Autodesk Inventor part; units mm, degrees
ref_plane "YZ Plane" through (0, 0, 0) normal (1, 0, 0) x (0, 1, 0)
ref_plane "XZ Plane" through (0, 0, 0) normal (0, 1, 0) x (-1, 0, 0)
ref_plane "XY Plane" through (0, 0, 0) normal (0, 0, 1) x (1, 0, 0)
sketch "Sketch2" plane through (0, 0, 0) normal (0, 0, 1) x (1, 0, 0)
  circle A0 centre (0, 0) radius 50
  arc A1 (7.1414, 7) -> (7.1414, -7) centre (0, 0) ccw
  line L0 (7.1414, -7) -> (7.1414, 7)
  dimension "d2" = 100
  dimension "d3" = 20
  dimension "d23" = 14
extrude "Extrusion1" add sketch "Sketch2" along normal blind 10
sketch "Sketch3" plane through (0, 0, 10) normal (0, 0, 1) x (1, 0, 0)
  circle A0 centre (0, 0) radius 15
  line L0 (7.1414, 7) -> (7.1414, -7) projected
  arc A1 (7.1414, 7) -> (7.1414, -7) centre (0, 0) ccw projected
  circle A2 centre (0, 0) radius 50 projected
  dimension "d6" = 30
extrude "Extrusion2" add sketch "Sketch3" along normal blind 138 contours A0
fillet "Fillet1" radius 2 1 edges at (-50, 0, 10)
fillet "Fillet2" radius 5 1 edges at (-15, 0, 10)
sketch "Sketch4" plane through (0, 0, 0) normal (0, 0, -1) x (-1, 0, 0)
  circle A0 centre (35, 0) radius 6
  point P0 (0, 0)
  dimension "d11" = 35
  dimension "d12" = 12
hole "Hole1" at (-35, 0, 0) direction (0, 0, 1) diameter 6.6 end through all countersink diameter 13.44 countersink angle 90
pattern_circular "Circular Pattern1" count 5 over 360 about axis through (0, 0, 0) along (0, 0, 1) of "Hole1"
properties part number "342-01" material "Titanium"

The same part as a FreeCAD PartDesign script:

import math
import FreeCAD as App
import Part
import Sketcher
Q = App.Units.Quantity


def edges_at(feature, points):
    """Names of the edges that pass closest to the given points."""
    edges = feature.Shape.Edges
    near = lambda p: min(range(len(edges)), key=lambda i: edges[i].distToShape(Part.Vertex(*p))[0])
    return sorted({f"Edge{near(p) + 1}" for p in points})

doc = App.newDocument("Part")
body = doc.addObject("PartDesign::Body", "Body")

# Sketch on XY plane
sketch1 = body.newObject("Sketcher::SketchObject", "Sketch")
sketch1.AttachmentSupport = (doc.getObject("XY_Plane"), [""])
sketch1.MapMode = "FlatFace"
sketch1.addGeometry([
    Part.Circle(App.Vector(0, 0, 0), App.Vector(0, 0, 1), 50),
    Part.ArcOfCircle(Part.Circle(App.Vector(0, 0, 0), App.Vector(0, 0, 1), 10), math.radians(44), math.radians(316)),
    Part.LineSegment(App.Vector(7, 7, 0), App.Vector(7, -7, 0)),
], False)
sketch1.addConstraint([
    Sketcher.Constraint("Coincident", 1, 1, 2, 1),
    Sketcher.Constraint("Coincident", 2, 2, 1, 2),
    Sketcher.Constraint("Vertical", 2),
    Sketcher.Constraint("Coincident", 0, 3, -1, 1),
    Sketcher.Constraint("Coincident", 1, 3, -1, 1),
    Sketcher.Constraint("Diameter", 0, Q("100 mm")),
    Sketcher.Constraint("Radius", 1, Q("10 mm")),
    Sketcher.Constraint("DistanceY", 2, 2, 2, 1, Q("14 mm")),
])
pad1 = body.newObject("PartDesign::Pad", "Pad")
pad1.Profile = sketch1
pad1.Length = 10

# Sketch on XY plane
sketch2 = body.newObject("Sketcher::SketchObject", "Sketch001")
sketch2.AttachmentSupport = (doc.getObject("XY_Plane"), [""])
sketch2.MapMode = "FlatFace"
sketch2.AttachmentOffset = App.Placement(App.Vector(0, 0, 10), App.Rotation())
sketch2.addGeometry([
    Part.Circle(App.Vector(0, 0, 0), App.Vector(0, 0, 1), 15),
    Part.ArcOfCircle(Part.Circle(App.Vector(0, 0, 0), App.Vector(0, 0, 1), 10), math.radians(44), math.radians(316)),
    Part.LineSegment(App.Vector(7, 7, 0), App.Vector(7, -7, 0)),
], False)
sketch2.addConstraint([
    Sketcher.Constraint("Coincident", 1, 1, 2, 1),
    Sketcher.Constraint("Coincident", 2, 2, 1, 2),
    Sketcher.Constraint("Vertical", 2),
    Sketcher.Constraint("Coincident", 0, 3, -1, 1),
    Sketcher.Constraint("Coincident", 1, 3, -1, 1),
    Sketcher.Constraint("Diameter", 0, Q("30 mm")),
    Sketcher.Constraint("Radius", 1, Q("10 mm")),
    Sketcher.Constraint("DistanceY", 2, 2, 2, 1, Q("14 mm")),
])
pad2 = body.newObject("PartDesign::Pad", "Pad001")
pad2.Profile = sketch2
pad2.Length = 138
doc.recompute()

fillet = body.newObject("PartDesign::Fillet", "Fillet")
fillet.Base = (pad2, edges_at(pad2, [(-50, 0, 10)]))
fillet.Radius = 2
doc.recompute()

fillet2 = body.newObject("PartDesign::Fillet", "Fillet001")
fillet2.Base = (fillet, edges_at(fillet, [(-15, 0, 10)]))
fillet2.Radius = 5

# Sketch on XY plane
sketch3 = body.newObject("Sketcher::SketchObject", "Sketch002")
sketch3.AttachmentSupport = (doc.getObject("XY_Plane"), [""])
sketch3.MapMode = "FlatFace"
sketch3.addGeometry(Part.Circle(App.Vector(-35, 0, 0), App.Vector(0, 0, 1), 3.3), False)
sketch3.addConstraint([
    Sketcher.Constraint("PointOnObject", 0, 3, -1),
    Sketcher.Constraint("Diameter", 0, Q("6.6 mm")),
    Sketcher.Constraint("DistanceX", 0, 3, -1, 1, Q("35 mm")),
])
doc.recompute()
hole = body.newObject("PartDesign::Hole", "Hole")
hole.Profile = sketch3
hole.ThreadType = "None"
hole.Diameter = 6.6
hole.DepthType = "ThroughAll"
hole.HoleCutType = "Countersink"
hole.HoleCutDiameter = 13.44
hole.HoleCutCountersinkAngle = 90
hole.Reversed = True
doc.recompute()

polarpattern = body.newObject("PartDesign::PolarPattern", "PolarPattern")
polarpattern.Originals = [hole]
polarpattern.Axis = (doc.getObject("Z_Axis"), [""])
polarpattern.Angle = 360
polarpattern.Occurrences = 5
body.Tip = polarpattern

doc.recompute()
